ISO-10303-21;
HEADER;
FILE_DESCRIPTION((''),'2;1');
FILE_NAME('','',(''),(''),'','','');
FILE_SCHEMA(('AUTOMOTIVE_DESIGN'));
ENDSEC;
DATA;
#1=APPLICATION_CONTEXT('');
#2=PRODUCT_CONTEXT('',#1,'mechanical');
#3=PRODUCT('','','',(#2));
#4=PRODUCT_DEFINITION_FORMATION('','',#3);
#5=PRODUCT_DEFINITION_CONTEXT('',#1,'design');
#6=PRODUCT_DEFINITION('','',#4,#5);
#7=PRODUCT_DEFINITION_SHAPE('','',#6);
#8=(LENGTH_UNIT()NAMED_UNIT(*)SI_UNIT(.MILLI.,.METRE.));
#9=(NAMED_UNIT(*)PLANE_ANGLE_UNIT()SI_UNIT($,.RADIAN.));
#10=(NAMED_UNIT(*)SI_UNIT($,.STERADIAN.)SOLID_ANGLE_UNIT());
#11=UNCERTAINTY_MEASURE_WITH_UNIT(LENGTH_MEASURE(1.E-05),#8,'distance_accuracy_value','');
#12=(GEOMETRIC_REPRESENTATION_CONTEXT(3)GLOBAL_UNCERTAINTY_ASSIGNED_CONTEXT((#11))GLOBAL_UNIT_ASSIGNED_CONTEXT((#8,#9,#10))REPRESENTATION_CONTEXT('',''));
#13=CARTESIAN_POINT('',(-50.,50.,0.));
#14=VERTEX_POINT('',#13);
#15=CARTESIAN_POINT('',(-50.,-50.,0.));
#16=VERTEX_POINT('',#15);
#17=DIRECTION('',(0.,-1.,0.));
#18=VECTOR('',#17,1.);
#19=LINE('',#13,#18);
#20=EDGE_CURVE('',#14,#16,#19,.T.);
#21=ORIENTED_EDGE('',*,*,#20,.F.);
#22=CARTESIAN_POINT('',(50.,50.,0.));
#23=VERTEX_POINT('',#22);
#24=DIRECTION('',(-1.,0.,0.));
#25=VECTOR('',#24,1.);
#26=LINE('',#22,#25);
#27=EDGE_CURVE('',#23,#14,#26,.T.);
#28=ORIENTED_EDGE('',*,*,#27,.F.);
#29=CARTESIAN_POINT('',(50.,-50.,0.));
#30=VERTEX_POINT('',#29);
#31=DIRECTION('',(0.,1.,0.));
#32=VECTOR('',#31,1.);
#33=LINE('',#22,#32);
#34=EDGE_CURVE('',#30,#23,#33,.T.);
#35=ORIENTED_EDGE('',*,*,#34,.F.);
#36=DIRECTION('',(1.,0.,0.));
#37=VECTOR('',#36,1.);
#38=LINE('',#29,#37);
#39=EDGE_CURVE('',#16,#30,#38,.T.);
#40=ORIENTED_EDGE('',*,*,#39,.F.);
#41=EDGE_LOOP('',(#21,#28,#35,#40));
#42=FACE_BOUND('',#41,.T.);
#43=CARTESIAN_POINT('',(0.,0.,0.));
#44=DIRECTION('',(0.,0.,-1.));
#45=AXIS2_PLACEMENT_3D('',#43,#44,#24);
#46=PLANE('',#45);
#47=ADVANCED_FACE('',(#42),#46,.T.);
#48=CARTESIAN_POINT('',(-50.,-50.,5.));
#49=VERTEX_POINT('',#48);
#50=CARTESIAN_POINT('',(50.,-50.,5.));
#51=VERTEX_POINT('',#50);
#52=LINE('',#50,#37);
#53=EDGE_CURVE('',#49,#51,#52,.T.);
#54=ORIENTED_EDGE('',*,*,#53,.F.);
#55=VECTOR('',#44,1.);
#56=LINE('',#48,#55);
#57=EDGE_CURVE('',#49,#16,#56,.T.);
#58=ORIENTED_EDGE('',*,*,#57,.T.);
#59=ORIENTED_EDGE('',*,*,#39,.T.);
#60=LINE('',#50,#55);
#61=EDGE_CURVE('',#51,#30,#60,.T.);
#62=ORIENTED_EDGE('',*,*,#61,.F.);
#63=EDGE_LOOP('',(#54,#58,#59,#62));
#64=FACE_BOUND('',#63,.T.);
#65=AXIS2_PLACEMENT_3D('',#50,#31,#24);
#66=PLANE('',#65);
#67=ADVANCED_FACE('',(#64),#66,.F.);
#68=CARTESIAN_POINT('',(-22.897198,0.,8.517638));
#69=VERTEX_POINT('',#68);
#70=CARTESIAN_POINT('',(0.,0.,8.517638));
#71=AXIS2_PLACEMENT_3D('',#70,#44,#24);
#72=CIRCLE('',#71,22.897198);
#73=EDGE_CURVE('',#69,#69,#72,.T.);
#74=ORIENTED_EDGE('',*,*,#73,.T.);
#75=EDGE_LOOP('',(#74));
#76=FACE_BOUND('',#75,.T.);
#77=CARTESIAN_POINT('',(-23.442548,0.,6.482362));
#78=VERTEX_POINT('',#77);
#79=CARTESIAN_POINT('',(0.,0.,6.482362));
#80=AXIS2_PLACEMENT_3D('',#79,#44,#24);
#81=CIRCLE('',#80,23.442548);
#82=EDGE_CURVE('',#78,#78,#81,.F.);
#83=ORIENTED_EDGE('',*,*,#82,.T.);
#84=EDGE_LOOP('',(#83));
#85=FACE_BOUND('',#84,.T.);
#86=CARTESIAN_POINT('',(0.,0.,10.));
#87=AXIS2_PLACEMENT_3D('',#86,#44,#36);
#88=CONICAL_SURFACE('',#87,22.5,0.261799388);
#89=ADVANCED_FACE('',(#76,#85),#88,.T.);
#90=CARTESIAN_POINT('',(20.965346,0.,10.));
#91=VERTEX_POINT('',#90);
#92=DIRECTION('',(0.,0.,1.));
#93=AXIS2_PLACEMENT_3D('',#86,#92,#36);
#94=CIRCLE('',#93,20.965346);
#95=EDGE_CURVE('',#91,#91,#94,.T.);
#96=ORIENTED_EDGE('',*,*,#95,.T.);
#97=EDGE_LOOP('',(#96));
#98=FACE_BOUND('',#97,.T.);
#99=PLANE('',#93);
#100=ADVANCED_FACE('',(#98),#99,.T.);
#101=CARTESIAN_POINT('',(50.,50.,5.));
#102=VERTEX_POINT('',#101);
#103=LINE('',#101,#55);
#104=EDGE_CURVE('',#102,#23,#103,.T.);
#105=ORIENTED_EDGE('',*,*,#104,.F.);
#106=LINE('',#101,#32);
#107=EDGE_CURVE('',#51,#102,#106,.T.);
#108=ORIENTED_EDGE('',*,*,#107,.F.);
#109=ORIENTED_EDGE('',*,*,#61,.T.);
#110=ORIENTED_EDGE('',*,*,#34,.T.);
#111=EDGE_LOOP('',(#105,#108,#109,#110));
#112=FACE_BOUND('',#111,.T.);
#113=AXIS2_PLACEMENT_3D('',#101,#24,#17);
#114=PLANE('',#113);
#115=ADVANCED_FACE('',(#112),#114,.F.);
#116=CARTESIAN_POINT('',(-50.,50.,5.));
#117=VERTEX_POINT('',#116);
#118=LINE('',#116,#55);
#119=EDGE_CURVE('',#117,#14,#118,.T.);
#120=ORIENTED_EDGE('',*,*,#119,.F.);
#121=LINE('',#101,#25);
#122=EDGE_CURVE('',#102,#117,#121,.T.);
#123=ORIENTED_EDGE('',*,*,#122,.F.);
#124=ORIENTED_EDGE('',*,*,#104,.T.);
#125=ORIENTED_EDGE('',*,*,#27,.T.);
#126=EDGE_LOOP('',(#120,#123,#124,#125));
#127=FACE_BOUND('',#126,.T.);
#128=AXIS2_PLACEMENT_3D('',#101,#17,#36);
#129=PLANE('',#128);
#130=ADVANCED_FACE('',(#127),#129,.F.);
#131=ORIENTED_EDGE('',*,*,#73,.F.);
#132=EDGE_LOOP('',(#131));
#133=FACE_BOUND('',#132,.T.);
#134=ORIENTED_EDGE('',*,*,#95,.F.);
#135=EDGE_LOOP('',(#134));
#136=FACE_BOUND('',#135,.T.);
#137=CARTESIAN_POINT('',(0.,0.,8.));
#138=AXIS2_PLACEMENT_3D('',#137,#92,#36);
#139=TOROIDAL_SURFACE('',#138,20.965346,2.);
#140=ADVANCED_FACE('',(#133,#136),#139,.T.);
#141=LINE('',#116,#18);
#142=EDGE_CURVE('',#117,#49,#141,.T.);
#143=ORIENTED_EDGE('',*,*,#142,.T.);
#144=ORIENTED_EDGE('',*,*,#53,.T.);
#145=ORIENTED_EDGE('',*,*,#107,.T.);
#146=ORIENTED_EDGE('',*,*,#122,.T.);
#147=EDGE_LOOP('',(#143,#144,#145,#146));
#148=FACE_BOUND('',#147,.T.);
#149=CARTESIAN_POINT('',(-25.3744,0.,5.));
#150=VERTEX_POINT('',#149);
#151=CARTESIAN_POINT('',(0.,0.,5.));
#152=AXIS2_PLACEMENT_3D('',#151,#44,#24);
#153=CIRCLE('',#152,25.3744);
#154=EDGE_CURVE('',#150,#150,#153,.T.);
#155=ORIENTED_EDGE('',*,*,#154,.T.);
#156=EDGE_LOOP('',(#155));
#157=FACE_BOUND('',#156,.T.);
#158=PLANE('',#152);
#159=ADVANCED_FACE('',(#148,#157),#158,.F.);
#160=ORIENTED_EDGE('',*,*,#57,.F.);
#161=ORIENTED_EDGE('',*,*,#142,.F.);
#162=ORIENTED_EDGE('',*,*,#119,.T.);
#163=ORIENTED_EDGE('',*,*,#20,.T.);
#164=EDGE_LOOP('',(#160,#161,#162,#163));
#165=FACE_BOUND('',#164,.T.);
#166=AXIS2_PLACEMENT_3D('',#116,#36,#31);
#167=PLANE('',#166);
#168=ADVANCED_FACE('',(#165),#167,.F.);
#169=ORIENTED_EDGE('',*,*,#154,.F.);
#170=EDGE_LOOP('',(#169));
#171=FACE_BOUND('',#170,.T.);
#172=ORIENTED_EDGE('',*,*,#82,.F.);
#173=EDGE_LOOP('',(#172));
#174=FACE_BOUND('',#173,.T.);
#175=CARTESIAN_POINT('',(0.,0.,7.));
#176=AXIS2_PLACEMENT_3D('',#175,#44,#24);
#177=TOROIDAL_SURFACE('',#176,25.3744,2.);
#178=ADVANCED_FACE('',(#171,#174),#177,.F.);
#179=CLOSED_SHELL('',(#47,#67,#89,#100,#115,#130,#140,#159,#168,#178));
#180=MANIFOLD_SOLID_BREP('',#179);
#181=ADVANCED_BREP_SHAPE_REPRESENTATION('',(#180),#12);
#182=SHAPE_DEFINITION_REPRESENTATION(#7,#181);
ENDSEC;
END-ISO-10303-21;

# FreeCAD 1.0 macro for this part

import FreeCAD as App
import Part
import Sketcher
from FreeCAD import Vector


def edges_at(feature, points):
    """Names of the edges that pass closest to the given points."""
    edges = feature.Shape.Edges
    near = lambda p: min(range(len(edges)), key=lambda i: edges[i].distToShape(Part.Vertex(*p))[0])
    return sorted({f"Edge{near(p) + 1}" for p in points})


def faces_at(feature, points):
    """Names of the faces that lie closest to the given points."""
    faces = feature.Shape.Faces
    near = lambda p: min(range(len(faces)), key=lambda i: faces[i].distToShape(Part.Vertex(*p))[0])
    return sorted({f"Face{near(p) + 1}" for p in points})

doc = App.newDocument("Part")
body = doc.addObject("PartDesign::Body", "Body")

# Sketch on XY plane
sketch1 = body.newObject("Sketcher::SketchObject", "Sketch")
sketch1.AttachmentSupport = (doc.getObject("XY_Plane"), [""])
sketch1.MapMode = "FlatFace"
sketch1.addGeometry(Part.LineSegment(Vector(-50, 50, 0), Vector(-50, -50, 0)), False)
sketch1.addGeometry(Part.LineSegment(Vector(-50, -50, 0), Vector(50, -50, 0)), False)
sketch1.addGeometry(Part.LineSegment(Vector(50, -50, 0), Vector(50, 50, 0)), False)
sketch1.addGeometry(Part.LineSegment(Vector(50, 50, 0), Vector(-50, 50, 0)), False)
sketch1.addConstraint(Sketcher.Constraint("Coincident", 0, 2, 1, 1))
sketch1.addConstraint(Sketcher.Constraint("Coincident", 1, 2, 2, 1))
sketch1.addConstraint(Sketcher.Constraint("Coincident", 2, 2, 3, 1))
sketch1.addConstraint(Sketcher.Constraint("Coincident", 3, 2, 0, 1))
sketch1.addConstraint(Sketcher.Constraint("Vertical", 0))
sketch1.addConstraint(Sketcher.Constraint("Horizontal", 1))
sketch1.addConstraint(Sketcher.Constraint("Vertical", 2))
sketch1.addConstraint(Sketcher.Constraint("Horizontal", 3))
sketch1.addConstraint(Sketcher.Constraint("Symmetric", 0, 2, 2, 2, -1, 1))
sketch1.addConstraint(Sketcher.Constraint("Equal", 3, 0))
sketch1.addConstraint(Sketcher.Constraint("DistanceX", 1, 1, 1, 2, 100.0))
pad1 = body.newObject("PartDesign::Pad", "Pad")
pad1.Profile = sketch1
pad1.Length = 5

# Sketch on XY plane
sketch2 = body.newObject("Sketcher::SketchObject", "Sketch001")
sketch2.AttachmentSupport = (doc.getObject("XY_Plane"), [""])
sketch2.MapMode = "FlatFace"
sketch2.AttachmentOffset = App.Placement(Vector(0, 0, 5), App.Rotation())
sketch2.addGeometry(Part.Circle(Vector(0, 0, 0), Vector(0, 0, 1), 22), False)
sketch2.addConstraint(Sketcher.Constraint("Coincident", 0, 3, -1, 1))
sketch2.addConstraint(Sketcher.Constraint("Diameter", 0, 45.0))
pad2 = body.newObject("PartDesign::Pad", "Pad001")
pad2.Profile = sketch2
pad2.Length = 5
doc.recompute()

datumplane = body.newObject("PartDesign::Plane", "DatumPlane")
datumplane.AttachmentSupport = (doc.getObject("XY_Plane"), [""])
datumplane.MapMode = "FlatFace"
datumplane.AttachmentOffset = App.Placement(Vector(0, 0, 10), App.Rotation())
draft = body.newObject("PartDesign::Draft", "Draft")
draft.Base = (pad2, faces_at(pad2, [(-22.5, 0, 7.5)]))
draft.NeutralPlane = (datumplane, [""])
draft.Angle = 15
draft.Reversed = False
doc.recompute()

fillet = body.newObject("PartDesign::Fillet", "Fillet")
fillet.Base = (draft, edges_at(draft, [(-23.84, 0, 5), (-22.5, 0, 10)]))
fillet.Radius = 2

doc.recompute()
